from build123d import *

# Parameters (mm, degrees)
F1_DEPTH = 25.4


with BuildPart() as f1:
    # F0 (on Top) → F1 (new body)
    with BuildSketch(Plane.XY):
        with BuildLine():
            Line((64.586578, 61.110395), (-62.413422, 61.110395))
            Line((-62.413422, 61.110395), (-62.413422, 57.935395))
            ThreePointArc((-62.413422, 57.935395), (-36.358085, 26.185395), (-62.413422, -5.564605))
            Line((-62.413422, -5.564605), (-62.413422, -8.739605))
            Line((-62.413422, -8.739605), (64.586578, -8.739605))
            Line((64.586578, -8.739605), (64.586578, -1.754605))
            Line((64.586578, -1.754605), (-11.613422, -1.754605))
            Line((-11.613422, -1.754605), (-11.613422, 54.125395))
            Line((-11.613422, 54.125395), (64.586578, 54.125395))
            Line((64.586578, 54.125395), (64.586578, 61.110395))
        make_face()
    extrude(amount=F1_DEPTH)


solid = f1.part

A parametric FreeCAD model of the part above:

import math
import FreeCAD as App
import Part
import Sketcher
Q = App.Units.Quantity

doc = App.newDocument("Part")
body = doc.addObject("PartDesign::Body", "Body")

sketch1 = body.newObject("Sketcher::SketchObject", "Sketch")
sketch1.AttachmentSupport = (doc.getObject("XY_Plane"), [""])
sketch1.MapMode = "FlatFace"
sketch1.addGeometry([
    Part.LineSegment(App.Vector(64.586578, 61.110395, 0), App.Vector(-62.413422, 61.110395, 0)),
    Part.LineSegment(App.Vector(-62.413422, 61.110395, 0), App.Vector(-62.413422, 57.935395, 0)),
    Part.ArcOfCircle(Part.Circle(App.Vector(-68.730399, 26.185395, 0), App.Vector(0, 0, 1), 32.372314), math.radians(-78.74738), math.radians(78.74738)),
    Part.LineSegment(App.Vector(-62.413422, -5.564605, 0), App.Vector(-62.413422, -8.739605, 0)),
    Part.LineSegment(App.Vector(-62.413422, -8.739605, 0), App.Vector(64.586578, -8.739605, 0)),
    Part.LineSegment(App.Vector(64.586578, -8.739605, 0), App.Vector(64.586578, -1.754605, 0)),
    Part.LineSegment(App.Vector(64.586578, -1.754605, 0), App.Vector(-11.613422, -1.754605, 0)),
    Part.LineSegment(App.Vector(-11.613422, -1.754605, 0), App.Vector(-11.613422, 54.125395, 0)),
    Part.LineSegment(App.Vector(-11.613422, 54.125395, 0), App.Vector(64.586578, 54.125395, 0)),
    Part.LineSegment(App.Vector(64.586578, 54.125395, 0), App.Vector(64.586578, 61.110395, 0)),
], False)
sketch1.addConstraint([
    Sketcher.Constraint("Coincident", 0, 2, 1, 1),
    Sketcher.Constraint("Coincident", 1, 2, 2, 2),
    Sketcher.Constraint("Coincident", 2, 1, 3, 1),
    Sketcher.Constraint("Coincident", 3, 2, 4, 1),
    Sketcher.Constraint("Coincident", 4, 2, 5, 1),
    Sketcher.Constraint("Coincident", 5, 2, 6, 1),
    Sketcher.Constraint("Coincident", 6, 2, 7, 1),
    Sketcher.Constraint("Coincident", 7, 2, 8, 1),
    Sketcher.Constraint("Coincident", 8, 2, 9, 1),
    Sketcher.Constraint("Coincident", 9, 2, 0, 1),
    Sketcher.Constraint("Horizontal", 0),
    Sketcher.Constraint("Vertical", 1),
    Sketcher.Constraint("Vertical", 3),
    Sketcher.Constraint("Horizontal", 4),
    Sketcher.Constraint("Vertical", 5),
    Sketcher.Constraint("Horizontal", 6),
    Sketcher.Constraint("Vertical", 7),
    Sketcher.Constraint("Horizontal", 8),
    Sketcher.Constraint("Vertical", 9),
    Sketcher.Constraint("Vertical", 1, 2, 2, 1),
    Sketcher.Constraint("Vertical", 5, 2, 8, 2),
    Sketcher.Constraint("Equal", 1, 3),
    Sketcher.Constraint("Equal", 5, 9),
    Sketcher.Constraint("DistanceX", 0, 2, 0, 1, Q("5 in")),
    Sketcher.Constraint("DistanceX", 6, 2, 6, 1, Q("3 in")),
    Sketcher.Constraint("DistanceY", 7, 1, 7, 2, Q("2.2 in")),
    Sketcher.Constraint("DistanceY", 2, 1, 1, 2, Q("2.5 in")),
    Sketcher.Constraint("DistanceY", 1, 2, 1, 1, Q("0.125 in")),
    Sketcher.Constraint("Radius", 2, 32.372314),
    Sketcher.Constraint("DistanceX", 2, 3, -1, 1, 68.730399),
    Sketcher.Constraint("DistanceY", -1, 1, 2, 3, 26.185395),
])
pad1 = body.newObject("PartDesign::Pad", "Pad")
pad1.Profile = sketch1
pad1.Length = Q("1 in")

doc.recompute()
